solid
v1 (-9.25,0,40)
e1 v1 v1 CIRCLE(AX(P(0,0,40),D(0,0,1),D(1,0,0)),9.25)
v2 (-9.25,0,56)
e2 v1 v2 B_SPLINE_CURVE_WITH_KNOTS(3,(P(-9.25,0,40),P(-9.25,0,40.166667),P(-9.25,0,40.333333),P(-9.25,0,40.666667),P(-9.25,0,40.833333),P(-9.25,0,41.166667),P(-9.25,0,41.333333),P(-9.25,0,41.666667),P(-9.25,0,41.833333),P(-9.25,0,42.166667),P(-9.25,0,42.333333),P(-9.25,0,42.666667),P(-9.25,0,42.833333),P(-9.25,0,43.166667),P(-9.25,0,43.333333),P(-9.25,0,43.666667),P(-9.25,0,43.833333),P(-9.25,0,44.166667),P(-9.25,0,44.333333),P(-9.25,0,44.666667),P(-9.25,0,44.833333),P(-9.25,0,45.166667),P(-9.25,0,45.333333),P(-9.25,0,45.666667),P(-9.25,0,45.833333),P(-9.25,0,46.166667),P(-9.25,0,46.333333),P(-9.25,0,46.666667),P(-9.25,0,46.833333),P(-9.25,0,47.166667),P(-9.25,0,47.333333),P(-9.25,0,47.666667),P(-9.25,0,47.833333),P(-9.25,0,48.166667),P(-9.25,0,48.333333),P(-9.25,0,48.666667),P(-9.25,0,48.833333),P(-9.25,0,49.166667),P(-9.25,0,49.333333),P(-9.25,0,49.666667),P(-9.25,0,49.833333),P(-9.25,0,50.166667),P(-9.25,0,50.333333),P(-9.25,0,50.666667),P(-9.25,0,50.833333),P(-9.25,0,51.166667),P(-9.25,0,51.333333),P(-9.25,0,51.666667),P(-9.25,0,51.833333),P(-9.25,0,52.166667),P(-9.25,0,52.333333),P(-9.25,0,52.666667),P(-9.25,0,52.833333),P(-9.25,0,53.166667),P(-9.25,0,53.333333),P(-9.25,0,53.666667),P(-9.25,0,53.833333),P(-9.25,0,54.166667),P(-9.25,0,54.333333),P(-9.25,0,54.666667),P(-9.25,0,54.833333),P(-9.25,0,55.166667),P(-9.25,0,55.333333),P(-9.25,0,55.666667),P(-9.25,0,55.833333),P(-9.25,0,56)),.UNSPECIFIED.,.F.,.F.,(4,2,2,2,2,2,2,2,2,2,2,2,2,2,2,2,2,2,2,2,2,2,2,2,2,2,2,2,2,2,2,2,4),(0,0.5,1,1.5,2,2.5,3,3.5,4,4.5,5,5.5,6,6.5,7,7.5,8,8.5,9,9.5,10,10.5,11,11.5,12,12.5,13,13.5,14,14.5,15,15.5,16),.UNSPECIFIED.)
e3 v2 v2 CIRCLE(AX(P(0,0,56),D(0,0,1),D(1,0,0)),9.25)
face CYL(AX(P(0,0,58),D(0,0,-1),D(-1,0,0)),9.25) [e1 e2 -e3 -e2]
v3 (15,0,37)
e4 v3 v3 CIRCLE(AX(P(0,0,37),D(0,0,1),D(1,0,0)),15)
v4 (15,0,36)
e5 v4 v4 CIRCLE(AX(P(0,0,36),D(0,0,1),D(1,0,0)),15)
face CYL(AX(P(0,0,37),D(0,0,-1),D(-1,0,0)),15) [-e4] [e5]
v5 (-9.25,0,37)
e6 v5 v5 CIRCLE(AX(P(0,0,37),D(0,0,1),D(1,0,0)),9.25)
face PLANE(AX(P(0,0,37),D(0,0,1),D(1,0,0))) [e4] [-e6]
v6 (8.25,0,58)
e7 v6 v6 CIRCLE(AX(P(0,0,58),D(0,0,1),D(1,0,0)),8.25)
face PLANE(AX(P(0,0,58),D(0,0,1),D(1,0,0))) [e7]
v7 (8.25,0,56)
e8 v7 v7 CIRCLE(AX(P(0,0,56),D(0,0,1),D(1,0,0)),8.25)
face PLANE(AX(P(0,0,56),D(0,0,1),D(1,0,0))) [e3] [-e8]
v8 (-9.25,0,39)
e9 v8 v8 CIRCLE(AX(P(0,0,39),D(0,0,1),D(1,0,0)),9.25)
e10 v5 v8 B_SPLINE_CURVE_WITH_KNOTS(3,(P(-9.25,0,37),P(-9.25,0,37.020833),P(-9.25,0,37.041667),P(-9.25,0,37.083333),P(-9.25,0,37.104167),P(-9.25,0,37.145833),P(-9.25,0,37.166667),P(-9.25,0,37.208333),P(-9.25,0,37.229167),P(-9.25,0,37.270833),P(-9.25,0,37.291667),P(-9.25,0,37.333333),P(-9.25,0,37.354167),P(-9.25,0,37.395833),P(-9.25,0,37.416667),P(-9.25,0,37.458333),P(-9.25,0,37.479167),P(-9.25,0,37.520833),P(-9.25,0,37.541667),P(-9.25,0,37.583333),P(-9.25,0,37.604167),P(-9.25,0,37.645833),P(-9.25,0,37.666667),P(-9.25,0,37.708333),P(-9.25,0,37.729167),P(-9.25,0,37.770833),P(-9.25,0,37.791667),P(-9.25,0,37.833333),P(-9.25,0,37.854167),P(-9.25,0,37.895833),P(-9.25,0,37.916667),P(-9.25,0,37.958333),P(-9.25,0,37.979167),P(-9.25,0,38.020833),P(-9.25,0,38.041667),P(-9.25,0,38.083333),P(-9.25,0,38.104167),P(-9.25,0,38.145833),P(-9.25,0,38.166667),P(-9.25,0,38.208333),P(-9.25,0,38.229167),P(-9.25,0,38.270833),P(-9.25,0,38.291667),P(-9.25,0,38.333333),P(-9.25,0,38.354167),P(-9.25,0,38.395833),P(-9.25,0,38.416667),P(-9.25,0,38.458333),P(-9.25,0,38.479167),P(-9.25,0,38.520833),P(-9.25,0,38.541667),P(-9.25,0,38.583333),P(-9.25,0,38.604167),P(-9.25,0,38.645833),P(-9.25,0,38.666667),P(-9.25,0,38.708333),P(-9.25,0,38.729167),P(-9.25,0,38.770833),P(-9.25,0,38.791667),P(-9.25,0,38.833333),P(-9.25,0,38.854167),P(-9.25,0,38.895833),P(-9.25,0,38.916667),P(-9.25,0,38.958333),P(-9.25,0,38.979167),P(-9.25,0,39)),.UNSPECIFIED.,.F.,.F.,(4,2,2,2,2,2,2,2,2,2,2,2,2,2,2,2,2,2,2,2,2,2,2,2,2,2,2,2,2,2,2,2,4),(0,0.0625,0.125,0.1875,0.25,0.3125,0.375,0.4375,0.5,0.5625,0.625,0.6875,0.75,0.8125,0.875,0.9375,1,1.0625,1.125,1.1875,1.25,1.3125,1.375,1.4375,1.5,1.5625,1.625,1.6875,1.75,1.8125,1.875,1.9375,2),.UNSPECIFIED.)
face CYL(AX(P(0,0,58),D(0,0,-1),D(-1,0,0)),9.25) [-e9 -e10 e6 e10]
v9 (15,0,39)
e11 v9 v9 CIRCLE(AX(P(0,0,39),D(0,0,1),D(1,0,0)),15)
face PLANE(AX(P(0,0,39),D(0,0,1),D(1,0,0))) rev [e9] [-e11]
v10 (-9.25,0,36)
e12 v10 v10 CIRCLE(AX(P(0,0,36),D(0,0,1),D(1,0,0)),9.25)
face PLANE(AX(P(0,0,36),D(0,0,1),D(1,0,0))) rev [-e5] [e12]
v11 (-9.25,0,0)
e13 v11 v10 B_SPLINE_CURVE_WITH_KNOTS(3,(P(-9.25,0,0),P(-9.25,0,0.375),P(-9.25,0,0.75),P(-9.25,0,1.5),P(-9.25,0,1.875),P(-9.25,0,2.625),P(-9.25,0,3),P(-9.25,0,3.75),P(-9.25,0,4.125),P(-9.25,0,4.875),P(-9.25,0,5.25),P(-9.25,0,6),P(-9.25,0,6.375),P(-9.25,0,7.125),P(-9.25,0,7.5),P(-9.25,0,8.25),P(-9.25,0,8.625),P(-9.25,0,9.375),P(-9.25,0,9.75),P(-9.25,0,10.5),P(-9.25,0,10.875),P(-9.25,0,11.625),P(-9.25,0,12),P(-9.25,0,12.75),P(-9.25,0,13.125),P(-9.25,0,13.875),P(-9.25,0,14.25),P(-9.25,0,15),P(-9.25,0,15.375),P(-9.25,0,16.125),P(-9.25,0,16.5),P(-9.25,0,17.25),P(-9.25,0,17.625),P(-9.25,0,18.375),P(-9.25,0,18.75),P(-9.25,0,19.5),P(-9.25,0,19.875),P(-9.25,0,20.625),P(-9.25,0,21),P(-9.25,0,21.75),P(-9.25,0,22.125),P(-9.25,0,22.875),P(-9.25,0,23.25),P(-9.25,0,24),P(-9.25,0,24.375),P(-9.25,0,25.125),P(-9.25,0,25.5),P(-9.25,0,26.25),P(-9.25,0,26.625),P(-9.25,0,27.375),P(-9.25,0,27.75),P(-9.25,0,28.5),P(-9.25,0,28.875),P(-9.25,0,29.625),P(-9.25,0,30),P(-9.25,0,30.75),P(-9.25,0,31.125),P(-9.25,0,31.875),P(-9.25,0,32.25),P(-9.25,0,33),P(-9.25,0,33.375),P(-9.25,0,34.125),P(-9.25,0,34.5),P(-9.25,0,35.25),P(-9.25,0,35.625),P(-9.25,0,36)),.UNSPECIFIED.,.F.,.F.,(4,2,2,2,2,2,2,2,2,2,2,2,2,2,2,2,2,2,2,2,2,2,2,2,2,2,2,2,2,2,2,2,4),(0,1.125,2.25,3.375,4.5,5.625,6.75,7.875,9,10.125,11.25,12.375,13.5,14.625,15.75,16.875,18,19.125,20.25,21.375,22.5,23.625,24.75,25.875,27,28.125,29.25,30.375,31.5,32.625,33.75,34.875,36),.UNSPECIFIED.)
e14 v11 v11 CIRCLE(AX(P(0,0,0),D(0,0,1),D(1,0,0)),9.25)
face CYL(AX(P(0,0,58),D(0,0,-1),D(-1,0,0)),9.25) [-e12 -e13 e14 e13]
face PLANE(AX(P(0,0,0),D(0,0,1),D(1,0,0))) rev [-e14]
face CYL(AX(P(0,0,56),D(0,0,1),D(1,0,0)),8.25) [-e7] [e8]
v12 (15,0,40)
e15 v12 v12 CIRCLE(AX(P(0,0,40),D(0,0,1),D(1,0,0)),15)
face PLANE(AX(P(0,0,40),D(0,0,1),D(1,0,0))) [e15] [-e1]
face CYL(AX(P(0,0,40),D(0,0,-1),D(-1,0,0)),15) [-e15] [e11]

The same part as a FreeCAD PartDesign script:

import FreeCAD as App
import Part
import Sketcher

V = App.Vector
Q = App.Units.Quantity

doc = App.newDocument("Part")
params = doc.addObject("Spreadsheet::Sheet", "Params")
for row, (alias, value) in enumerate([
    ("sketch1_diameter", "18.5 mm"),
    ("pad1_length", "58 mm"),
    ("sketch2_diameter", "18.5 mm"),
    ("sketch2_diameter2", "16.5 mm"),
    ("pocket1_length", "2 mm"),
    ("sketch3_diameter", "30 mm"),
    ("pad2_length", "1 mm"),
    ("linearpattern_pitch", "3 mm"),
], start=1):
    params.set(f"A{row}", alias)
    params.set(f"B{row}", "=" + value)
    params.setAlias(f"B{row}", alias)

body = doc.addObject("PartDesign::Body", "Body")

sketch1 = doc.addObject("Sketcher::SketchObject", "Sketch")
body.addObject(sketch1)
sketch1.AttachmentSupport = (doc.XY_Plane, [""])
sketch1.MapMode = "FlatFace"
sketch1.addGeometry(Part.Circle(V(0, 0, 0), V(0, 0, 1), 9), False)
sketch1.addConstraint([
    Sketcher.Constraint("Coincident", 0, 3, -1, 1),
    Sketcher.Constraint("Diameter", 0, Q("18.5 mm")),
])
sketch1.setExpression("Constraints[1]", "Params.sketch1_diameter")
pad1 = doc.addObject("PartDesign::Pad", "Pad")
body.addObject(pad1)
pad1.Profile = sketch1
pad1.setExpression("Length", "Params.pad1_length")

sketch2 = doc.addObject("Sketcher::SketchObject", "Sketch001")
body.addObject(sketch2)
sketch2.AttachmentSupport = (doc.XY_Plane, [""])
sketch2.MapMode = "FlatFace"
sketch2.AttachmentOffset = App.Placement(V(0, 0, 56), App.Rotation())
sketch2.addGeometry([
    Part.Circle(V(0, 0, 0), V(0, 0, 1), 9),
    Part.Circle(V(0, 0, 0), V(0, 0, 1), 8),
], False)
sketch2.addConstraint([
    Sketcher.Constraint("Coincident", 0, 3, -1, 1),
    Sketcher.Constraint("Coincident", 1, 3, -1, 1),
    Sketcher.Constraint("Diameter", 0, Q("18.5 mm")),
    Sketcher.Constraint("Diameter", 1, Q("16.5 mm")),
])
sketch2.setExpression("Constraints[2]", "Params.sketch2_diameter")
sketch2.setExpression("Constraints[3]", "Params.sketch2_diameter2")
pocket1 = doc.addObject("PartDesign::Pocket", "Pocket")
body.addObject(pocket1)
pocket1.Profile = sketch2
pocket1.setExpression("Length", "Params.pocket1_length")
pocket1.Reversed = True

sketch3 = doc.addObject("Sketcher::SketchObject", "Sketch002")
body.addObject(sketch3)
sketch3.AttachmentSupport = (doc.XY_Plane, [""])
sketch3.MapMode = "FlatFace"
sketch3.AttachmentOffset = App.Placement(V(0, 0, 36), App.Rotation())
sketch3.addGeometry(Part.Circle(V(0, 0, 0), V(0, 0, 1), 15), False)
sketch3.addConstraint([
    Sketcher.Constraint("Coincident", 0, 3, -1, 1),
    Sketcher.Constraint("Diameter", 0, Q("30 mm")),
])
sketch3.setExpression("Constraints[1]", "Params.sketch3_diameter")
pad2 = doc.addObject("PartDesign::Pad", "Pad001")
body.addObject(pad2)
pad2.Profile = sketch3
pad2.setExpression("Length", "Params.pad2_length")
doc.recompute()

linearpattern = doc.addObject("PartDesign::LinearPattern", "LinearPattern")
body.addObject(linearpattern)
linearpattern.Originals = [pad2]
linearpattern.Direction = (doc.Z_Axis, [""])
linearpattern.Mode = "offset"
linearpattern.setExpression("Offset", "Params.linearpattern_pitch")
linearpattern.Occurrences = 2
body.Tip = linearpattern

doc.recompute()
